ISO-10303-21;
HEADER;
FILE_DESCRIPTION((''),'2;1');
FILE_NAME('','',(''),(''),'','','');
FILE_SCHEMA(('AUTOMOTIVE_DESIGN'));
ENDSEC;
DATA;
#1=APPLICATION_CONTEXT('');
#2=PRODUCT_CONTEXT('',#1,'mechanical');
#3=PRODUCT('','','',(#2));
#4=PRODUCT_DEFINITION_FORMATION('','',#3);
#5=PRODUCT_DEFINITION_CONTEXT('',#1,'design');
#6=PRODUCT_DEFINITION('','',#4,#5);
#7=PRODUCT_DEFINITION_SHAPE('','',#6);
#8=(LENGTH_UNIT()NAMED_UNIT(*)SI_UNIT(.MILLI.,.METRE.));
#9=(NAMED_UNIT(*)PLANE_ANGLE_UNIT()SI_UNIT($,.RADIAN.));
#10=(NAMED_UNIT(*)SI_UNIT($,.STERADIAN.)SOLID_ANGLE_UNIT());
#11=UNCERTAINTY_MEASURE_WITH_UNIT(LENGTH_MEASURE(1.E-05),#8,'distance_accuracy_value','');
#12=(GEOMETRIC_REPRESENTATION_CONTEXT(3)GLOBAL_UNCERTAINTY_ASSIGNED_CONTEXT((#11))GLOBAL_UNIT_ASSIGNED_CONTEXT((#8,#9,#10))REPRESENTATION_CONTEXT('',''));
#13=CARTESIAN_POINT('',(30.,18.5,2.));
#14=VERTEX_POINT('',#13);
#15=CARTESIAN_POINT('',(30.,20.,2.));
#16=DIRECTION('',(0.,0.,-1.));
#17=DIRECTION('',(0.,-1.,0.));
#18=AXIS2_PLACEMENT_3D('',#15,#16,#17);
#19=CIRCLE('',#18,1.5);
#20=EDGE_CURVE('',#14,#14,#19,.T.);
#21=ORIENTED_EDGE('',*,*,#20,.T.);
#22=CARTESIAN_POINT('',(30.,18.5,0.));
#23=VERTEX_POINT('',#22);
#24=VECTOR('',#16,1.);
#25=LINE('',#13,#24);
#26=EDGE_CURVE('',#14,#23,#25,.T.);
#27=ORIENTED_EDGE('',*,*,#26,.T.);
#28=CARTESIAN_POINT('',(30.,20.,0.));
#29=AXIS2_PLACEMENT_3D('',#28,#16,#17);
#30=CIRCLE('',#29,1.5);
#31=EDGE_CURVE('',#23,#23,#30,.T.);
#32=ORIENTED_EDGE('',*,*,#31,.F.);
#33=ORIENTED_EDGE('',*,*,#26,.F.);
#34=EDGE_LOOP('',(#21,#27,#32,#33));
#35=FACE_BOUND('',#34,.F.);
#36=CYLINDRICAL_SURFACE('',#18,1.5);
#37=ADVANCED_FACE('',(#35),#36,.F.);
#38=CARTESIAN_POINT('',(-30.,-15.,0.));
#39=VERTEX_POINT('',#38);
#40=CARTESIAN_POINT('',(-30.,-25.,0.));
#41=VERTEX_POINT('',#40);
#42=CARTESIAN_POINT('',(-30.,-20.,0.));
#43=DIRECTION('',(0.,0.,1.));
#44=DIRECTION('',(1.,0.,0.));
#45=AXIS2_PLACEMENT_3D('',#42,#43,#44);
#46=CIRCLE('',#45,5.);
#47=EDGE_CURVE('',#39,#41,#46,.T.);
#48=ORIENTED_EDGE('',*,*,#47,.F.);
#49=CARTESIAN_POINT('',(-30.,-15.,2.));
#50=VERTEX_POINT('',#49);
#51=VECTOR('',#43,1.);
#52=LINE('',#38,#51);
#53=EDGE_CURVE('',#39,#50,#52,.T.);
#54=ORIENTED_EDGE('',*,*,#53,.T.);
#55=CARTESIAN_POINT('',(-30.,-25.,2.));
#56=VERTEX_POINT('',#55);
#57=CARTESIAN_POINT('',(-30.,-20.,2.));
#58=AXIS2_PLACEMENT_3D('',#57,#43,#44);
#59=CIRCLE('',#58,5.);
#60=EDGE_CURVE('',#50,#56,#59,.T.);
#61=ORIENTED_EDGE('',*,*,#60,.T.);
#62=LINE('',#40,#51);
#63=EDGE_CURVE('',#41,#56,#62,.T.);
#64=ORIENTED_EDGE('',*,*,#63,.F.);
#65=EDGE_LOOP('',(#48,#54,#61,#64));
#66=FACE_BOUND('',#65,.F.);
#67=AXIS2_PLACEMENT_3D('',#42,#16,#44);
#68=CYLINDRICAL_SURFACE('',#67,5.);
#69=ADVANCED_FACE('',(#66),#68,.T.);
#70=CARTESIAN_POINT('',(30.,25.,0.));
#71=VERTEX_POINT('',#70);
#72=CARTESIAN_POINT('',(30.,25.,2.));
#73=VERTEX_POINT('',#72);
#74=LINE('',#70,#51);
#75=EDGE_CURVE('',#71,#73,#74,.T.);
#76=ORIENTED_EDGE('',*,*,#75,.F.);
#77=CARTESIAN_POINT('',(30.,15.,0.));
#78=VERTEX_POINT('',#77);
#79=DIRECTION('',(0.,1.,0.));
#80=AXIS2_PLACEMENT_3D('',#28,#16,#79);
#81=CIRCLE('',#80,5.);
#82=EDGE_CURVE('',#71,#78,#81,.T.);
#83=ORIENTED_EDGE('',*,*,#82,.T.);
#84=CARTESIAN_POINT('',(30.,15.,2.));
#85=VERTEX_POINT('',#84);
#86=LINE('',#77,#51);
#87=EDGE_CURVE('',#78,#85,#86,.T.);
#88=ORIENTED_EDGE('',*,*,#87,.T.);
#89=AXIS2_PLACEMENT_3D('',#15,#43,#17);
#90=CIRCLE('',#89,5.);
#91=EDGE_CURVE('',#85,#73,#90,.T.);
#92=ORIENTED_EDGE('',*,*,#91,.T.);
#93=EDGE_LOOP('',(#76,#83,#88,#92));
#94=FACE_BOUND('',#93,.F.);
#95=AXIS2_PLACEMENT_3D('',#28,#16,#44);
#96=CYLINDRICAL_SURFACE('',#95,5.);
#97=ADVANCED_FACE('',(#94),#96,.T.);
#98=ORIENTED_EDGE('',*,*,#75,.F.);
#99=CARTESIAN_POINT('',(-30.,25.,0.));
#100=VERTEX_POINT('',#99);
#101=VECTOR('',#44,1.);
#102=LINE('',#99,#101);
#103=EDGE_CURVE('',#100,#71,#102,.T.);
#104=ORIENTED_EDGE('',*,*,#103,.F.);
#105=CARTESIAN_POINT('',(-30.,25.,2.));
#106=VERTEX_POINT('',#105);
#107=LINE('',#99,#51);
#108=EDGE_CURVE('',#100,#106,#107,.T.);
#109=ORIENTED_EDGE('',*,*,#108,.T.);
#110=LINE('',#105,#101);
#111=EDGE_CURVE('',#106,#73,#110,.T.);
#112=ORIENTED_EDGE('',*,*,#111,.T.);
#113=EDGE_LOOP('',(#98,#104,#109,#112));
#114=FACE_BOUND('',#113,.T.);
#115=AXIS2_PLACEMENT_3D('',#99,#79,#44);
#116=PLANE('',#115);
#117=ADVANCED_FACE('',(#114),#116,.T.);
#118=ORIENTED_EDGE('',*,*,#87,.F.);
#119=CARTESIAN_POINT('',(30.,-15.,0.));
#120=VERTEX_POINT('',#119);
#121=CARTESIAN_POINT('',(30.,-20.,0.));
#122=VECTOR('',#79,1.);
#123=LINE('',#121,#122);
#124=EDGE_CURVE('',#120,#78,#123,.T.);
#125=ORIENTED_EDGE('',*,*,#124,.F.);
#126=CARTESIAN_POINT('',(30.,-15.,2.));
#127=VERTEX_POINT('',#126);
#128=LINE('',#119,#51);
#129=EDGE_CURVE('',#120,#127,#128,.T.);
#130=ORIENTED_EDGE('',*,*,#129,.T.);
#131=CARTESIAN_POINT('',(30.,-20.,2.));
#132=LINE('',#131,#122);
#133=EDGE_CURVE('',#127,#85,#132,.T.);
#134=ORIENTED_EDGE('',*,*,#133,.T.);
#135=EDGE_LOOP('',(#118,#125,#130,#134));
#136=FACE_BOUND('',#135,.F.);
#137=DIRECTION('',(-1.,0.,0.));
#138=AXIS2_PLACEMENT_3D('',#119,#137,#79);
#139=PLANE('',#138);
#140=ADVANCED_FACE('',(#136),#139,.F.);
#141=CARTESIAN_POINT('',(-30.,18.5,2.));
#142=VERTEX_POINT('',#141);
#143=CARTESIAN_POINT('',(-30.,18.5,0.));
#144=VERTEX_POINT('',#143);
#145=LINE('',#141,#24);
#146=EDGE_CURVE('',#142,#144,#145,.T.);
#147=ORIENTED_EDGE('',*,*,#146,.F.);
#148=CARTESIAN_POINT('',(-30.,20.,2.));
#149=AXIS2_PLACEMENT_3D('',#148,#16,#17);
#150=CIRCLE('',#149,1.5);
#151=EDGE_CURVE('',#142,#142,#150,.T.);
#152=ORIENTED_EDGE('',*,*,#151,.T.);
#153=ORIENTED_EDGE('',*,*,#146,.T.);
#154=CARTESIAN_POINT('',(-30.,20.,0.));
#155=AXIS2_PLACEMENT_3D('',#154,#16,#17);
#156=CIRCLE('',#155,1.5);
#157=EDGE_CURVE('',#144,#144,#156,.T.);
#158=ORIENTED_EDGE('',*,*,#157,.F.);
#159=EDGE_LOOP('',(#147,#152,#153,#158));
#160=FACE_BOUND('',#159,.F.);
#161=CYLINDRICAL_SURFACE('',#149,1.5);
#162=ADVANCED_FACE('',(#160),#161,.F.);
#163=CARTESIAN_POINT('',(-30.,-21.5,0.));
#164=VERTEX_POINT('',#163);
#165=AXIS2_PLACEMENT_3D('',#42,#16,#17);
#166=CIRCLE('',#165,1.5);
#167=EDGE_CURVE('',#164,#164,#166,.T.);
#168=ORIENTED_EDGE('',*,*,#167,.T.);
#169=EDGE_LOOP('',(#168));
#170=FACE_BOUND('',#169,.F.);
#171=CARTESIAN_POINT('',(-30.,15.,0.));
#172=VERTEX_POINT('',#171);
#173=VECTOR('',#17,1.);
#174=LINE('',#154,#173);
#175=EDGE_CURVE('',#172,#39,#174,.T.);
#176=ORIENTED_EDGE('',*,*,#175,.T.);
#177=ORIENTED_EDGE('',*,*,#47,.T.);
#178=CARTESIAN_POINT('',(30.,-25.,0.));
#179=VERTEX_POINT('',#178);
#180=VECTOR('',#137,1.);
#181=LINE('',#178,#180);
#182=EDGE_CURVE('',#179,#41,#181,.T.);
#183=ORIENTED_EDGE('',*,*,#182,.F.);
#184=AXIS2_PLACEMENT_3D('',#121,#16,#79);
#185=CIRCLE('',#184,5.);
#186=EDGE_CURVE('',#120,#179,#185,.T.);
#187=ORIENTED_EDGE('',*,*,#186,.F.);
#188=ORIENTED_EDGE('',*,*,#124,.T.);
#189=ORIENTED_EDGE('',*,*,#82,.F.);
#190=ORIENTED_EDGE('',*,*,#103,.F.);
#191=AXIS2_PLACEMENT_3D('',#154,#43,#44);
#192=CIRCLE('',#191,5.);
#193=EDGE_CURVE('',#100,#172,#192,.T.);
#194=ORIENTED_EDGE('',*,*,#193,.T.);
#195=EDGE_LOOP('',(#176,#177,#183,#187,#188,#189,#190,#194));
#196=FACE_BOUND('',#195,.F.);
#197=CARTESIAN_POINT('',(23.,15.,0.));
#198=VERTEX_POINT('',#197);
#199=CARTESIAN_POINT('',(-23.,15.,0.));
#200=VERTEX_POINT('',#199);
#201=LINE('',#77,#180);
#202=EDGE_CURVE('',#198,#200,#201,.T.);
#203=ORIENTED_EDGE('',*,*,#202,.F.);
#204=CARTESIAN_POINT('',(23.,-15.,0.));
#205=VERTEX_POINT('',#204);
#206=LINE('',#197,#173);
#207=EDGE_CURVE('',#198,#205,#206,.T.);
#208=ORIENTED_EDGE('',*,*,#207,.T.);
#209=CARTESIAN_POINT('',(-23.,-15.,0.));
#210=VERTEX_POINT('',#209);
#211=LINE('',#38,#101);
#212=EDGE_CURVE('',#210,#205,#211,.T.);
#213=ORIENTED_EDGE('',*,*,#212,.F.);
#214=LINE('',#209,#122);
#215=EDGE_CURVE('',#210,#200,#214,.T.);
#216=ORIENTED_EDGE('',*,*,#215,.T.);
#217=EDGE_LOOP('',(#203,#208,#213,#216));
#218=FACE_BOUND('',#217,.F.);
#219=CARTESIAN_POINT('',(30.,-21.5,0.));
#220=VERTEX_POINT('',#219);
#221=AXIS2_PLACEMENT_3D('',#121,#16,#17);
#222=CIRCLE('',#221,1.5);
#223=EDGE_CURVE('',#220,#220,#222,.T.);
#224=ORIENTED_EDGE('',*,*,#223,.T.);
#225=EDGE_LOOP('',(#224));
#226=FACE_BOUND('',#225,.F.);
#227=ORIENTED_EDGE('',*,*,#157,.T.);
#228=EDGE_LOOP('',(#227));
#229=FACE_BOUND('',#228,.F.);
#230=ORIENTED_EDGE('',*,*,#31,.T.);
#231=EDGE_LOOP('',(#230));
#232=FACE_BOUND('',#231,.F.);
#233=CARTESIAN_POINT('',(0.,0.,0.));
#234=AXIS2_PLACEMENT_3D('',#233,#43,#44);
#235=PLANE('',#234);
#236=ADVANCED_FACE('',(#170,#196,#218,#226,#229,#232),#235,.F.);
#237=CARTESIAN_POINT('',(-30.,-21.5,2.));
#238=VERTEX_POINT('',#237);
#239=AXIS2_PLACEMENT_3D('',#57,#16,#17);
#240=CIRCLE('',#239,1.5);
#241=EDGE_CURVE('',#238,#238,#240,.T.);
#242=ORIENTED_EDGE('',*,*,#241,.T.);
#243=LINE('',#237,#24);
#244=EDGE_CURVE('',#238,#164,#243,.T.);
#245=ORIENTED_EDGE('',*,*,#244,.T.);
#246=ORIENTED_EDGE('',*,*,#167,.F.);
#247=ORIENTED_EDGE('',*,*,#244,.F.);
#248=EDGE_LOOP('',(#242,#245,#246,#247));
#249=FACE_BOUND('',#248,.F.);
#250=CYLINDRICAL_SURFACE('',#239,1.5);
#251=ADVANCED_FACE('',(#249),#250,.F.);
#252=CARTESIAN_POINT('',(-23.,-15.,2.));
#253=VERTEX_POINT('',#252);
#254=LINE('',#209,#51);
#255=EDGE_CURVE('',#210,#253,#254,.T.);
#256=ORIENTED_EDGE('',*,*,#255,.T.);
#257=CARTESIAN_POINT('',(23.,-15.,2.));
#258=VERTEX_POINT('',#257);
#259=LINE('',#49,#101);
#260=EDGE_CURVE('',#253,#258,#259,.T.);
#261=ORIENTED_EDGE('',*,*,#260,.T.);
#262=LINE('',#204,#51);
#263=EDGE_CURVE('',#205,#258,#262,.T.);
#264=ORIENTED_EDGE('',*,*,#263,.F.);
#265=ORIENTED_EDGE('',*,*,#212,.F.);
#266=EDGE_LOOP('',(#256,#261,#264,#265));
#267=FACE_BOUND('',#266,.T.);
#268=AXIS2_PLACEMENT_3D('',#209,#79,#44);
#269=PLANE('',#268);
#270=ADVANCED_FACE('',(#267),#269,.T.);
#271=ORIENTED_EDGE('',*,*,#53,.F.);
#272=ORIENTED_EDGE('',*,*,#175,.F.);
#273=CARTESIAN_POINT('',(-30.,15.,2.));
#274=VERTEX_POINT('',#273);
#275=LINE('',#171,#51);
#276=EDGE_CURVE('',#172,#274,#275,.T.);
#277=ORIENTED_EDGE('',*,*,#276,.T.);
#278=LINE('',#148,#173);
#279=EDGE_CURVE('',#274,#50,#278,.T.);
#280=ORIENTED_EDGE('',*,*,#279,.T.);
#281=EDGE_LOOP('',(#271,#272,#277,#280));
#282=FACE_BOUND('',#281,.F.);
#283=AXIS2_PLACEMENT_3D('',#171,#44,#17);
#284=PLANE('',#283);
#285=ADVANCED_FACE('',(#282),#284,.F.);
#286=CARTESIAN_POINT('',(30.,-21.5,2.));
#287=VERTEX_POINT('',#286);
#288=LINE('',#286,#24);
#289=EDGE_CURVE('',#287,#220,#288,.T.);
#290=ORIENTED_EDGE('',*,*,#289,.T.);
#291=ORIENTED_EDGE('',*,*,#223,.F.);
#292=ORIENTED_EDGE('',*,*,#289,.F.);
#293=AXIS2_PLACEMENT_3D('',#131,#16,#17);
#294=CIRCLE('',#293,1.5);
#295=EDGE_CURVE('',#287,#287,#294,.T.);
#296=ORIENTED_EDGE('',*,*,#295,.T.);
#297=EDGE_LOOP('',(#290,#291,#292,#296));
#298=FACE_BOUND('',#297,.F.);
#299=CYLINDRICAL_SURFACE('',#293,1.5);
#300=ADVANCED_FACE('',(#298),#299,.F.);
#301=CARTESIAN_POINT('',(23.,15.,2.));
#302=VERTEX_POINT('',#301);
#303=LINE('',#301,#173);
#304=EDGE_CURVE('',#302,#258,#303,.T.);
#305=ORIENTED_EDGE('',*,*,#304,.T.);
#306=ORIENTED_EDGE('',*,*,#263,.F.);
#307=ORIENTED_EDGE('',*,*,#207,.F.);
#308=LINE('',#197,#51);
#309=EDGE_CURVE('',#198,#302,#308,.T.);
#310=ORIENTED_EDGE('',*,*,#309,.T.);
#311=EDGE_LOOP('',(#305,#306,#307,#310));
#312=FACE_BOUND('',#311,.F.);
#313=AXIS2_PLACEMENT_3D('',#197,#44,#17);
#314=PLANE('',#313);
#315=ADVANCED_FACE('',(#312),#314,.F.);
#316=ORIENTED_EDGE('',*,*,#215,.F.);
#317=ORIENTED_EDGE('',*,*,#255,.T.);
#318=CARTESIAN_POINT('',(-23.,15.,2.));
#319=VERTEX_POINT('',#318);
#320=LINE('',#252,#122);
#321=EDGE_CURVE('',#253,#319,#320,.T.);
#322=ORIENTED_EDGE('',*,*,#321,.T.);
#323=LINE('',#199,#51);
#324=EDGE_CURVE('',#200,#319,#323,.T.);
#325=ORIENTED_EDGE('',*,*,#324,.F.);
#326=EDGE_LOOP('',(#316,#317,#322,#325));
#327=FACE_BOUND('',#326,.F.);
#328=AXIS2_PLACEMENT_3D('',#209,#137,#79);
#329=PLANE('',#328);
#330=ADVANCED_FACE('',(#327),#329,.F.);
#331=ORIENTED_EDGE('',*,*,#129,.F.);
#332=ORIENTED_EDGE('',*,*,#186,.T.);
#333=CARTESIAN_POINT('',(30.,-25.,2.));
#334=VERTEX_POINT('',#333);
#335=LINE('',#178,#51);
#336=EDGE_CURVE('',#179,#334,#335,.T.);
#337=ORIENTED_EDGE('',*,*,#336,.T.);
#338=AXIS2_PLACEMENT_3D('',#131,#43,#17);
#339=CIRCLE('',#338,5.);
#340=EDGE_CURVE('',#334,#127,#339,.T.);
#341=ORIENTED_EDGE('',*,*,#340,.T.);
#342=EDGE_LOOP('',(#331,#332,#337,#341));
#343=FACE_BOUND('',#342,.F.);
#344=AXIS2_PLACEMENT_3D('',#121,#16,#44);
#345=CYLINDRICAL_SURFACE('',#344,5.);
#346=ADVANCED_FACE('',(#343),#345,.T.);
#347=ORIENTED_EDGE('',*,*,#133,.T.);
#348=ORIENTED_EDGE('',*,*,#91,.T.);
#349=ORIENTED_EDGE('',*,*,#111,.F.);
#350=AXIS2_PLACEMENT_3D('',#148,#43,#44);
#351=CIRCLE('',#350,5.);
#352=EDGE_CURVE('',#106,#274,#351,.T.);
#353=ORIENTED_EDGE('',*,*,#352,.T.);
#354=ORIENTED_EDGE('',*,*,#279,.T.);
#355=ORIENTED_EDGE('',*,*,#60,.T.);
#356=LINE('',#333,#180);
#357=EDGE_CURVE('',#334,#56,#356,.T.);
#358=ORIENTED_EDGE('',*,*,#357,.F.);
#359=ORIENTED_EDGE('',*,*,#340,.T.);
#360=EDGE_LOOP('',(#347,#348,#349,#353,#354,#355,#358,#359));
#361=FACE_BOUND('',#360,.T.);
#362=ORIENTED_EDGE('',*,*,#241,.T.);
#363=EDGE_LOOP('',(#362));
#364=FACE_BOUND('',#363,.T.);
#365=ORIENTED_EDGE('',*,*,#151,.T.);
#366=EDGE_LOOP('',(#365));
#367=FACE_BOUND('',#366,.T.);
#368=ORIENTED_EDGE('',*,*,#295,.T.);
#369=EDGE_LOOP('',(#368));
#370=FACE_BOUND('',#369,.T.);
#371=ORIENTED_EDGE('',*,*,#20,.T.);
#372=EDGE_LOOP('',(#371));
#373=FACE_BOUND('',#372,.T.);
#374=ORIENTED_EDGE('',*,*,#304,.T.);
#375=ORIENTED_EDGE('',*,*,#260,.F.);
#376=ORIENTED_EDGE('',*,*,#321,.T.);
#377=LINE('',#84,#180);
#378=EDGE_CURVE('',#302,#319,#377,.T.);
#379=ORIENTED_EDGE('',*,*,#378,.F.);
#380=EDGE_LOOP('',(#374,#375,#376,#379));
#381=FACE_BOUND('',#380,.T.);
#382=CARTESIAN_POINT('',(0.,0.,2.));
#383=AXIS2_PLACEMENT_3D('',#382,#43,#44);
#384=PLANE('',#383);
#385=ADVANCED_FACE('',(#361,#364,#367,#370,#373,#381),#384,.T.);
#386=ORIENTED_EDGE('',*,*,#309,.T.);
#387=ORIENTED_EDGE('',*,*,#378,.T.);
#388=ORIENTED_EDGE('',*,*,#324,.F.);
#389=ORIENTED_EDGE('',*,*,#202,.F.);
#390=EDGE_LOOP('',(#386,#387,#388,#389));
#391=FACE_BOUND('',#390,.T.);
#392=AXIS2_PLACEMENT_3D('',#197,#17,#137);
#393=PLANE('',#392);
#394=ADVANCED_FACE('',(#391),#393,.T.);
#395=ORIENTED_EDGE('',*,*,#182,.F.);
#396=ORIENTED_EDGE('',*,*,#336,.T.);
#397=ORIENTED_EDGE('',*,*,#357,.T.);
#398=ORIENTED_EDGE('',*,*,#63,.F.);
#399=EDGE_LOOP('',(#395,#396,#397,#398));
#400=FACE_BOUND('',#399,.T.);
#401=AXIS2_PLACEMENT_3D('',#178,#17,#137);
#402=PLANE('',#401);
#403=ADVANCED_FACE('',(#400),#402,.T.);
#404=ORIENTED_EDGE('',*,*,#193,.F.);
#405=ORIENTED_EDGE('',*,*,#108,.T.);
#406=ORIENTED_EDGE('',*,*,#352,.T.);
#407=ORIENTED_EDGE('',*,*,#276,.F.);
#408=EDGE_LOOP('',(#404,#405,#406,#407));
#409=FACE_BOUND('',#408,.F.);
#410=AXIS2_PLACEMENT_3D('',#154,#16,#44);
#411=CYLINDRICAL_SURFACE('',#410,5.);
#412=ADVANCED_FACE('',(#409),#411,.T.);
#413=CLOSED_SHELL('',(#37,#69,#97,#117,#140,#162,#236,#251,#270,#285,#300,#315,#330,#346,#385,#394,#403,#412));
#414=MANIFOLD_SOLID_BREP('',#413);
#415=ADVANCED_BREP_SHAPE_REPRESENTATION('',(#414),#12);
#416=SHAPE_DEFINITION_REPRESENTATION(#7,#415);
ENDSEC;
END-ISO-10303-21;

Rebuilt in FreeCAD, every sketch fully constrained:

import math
import FreeCAD as App
import Part
import Sketcher
Q = App.Units.Quantity


def add_polygon(sketch, points):
    """Adds a closed chain of lines whose ends are joined by coincident constraints."""
    first, n = sketch.GeometryCount, len(points)
    for a, b in zip(points, points[1:] + points[:1]):
        sketch.addGeometry(Part.LineSegment(App.Vector(*a, 0), App.Vector(*b, 0)), False)
    for i in range(n):
        sketch.addConstraint(Sketcher.Constraint("Coincident", first + i, 2, first + (i + 1) % n, 1))

doc = App.newDocument("Part")
params = doc.addObject("Spreadsheet::Sheet", "Params")
for row, (alias, value) in enumerate([
    ("sketch1_radius", "5 mm"),
    ("sketch1_width", "60 mm"),
    ("pad1_length", "2 mm"),
    ("sketch2_diameter", "3 mm"),
    ("hole_diameter", "3 mm"),
], start=1):
    params.set(f"A{row}", alias)
    params.set(f"B{row}", "=" + value)
    params.setAlias(f"B{row}", alias)

body = doc.addObject("PartDesign::Body", "Body")

sketch1 = body.newObject("Sketcher::SketchObject", "Sketch")
sketch1.AttachmentSupport = (doc.getObject("XY_Plane"), [""])
sketch1.MapMode = "FlatFace"
sketch1.addGeometry(Part.ArcOfCircle(Part.Circle(App.Vector(-30, -20, 0), App.Vector(0, 0, 1), 5), math.radians(90), math.radians(270)), False)
sketch1.addGeometry(Part.LineSegment(App.Vector(-30, -25, 0), App.Vector(30, -25, 0)), False)
sketch1.addGeometry(Part.ArcOfCircle(Part.Circle(App.Vector(30, -20, 0), App.Vector(0, 0, 1), 5), math.radians(-90), math.radians(90)), False)
sketch1.addGeometry(Part.LineSegment(App.Vector(30, -15, 0), App.Vector(30, 15, 0)), False)
sketch1.addGeometry(Part.ArcOfCircle(Part.Circle(App.Vector(30, 20, 0), App.Vector(0, 0, 1), 5), math.radians(-90), math.radians(90)), False)
sketch1.addGeometry(Part.LineSegment(App.Vector(30, 25, 0), App.Vector(-30, 25, 0)), False)
sketch1.addGeometry(Part.ArcOfCircle(Part.Circle(App.Vector(-30, 20, 0), App.Vector(0, 0, 1), 5), math.radians(90), math.radians(270)), False)
sketch1.addGeometry(Part.LineSegment(App.Vector(-30, 15, 0), App.Vector(-30, -15, 0)), False)
add_polygon(sketch1, [(23, -15), (-23, -15), (-23, 15), (23, 15)])
sketch1.addConstraint(Sketcher.Constraint("Tangent", 0, 2, 1, 1))
sketch1.addConstraint(Sketcher.Constraint("Tangent", 1, 2, 2, 1))
sketch1.addConstraint(Sketcher.Constraint("Coincident", 2, 2, 3, 1))
sketch1.addConstraint(Sketcher.Constraint("Coincident", 3, 2, 4, 1))
sketch1.addConstraint(Sketcher.Constraint("Tangent", 4, 2, 5, 1))
sketch1.addConstraint(Sketcher.Constraint("Tangent", 5, 2, 6, 1))
sketch1.addConstraint(Sketcher.Constraint("Coincident", 6, 2, 7, 1))
sketch1.addConstraint(Sketcher.Constraint("Coincident", 7, 2, 0, 1))
sketch1.addConstraint(Sketcher.Constraint("Horizontal", 1))
sketch1.addConstraint(Sketcher.Constraint("Vertical", 3))
sketch1.addConstraint(Sketcher.Constraint("Horizontal", 5))
sketch1.addConstraint(Sketcher.Constraint("Vertical", 7))
sketch1.addConstraint(Sketcher.Constraint("Horizontal", 8))
sketch1.addConstraint(Sketcher.Constraint("Vertical", 9))
sketch1.addConstraint(Sketcher.Constraint("Horizontal", 10))
sketch1.addConstraint(Sketcher.Constraint("Vertical", 11))
sketch1.addConstraint(Sketcher.Constraint("Equal", 0, 2))
sketch1.addConstraint(Sketcher.Constraint("Equal", 2, 4))
sketch1.addConstraint(Sketcher.Constraint("Equal", 4, 6))
sketch1.addConstraint(Sketcher.Constraint("Symmetric", 0, 3, 4, 3, -1, 1))
sketch1.addConstraint(Sketcher.Constraint("Symmetric", 8, 2, 10, 2, -1, 1))
sketch1.addConstraint(Sketcher.Constraint("Horizontal", 7, 2, 8, 2))
sketch1.addConstraint(Sketcher.Constraint("Vertical", 2, 3, 4, 3))
sketch1.addConstraint(Sketcher.Constraint("Vertical", 0, 3, 6, 3))
sketch1.addConstraint(Sketcher.Constraint("Vertical", 1, 2, 2, 2))
sketch1.addConstraint(Sketcher.Constraint("Vertical", 5, 2, 6, 2))
sketch1.addConstraint(Sketcher.Constraint("Radius", 0, Q("5 mm")))
sketch1.addConstraint(Sketcher.Constraint("DistanceX", 1, 1, 1, 2, Q("60 mm")))
sketch1.addConstraint(Sketcher.Constraint("DistanceY", 2, 3, 4, 3, Q("40 mm")))
sketch1.addConstraint(Sketcher.Constraint("DistanceX", 7, 2, 8, 2, Q("7 mm")))
sketch1.setExpression("Constraints[30]", "Params.sketch1_radius")
sketch1.setExpression("Constraints[31]", "Params.sketch1_width")
pad1 = body.newObject("PartDesign::Pad", "Pad")
pad1.Profile = sketch1
pad1.setExpression("Length", "Params.pad1_length")

sketch2 = body.newObject("Sketcher::SketchObject", "Sketch001")
sketch2.AttachmentSupport = (doc.getObject("XY_Plane"), [""])
sketch2.MapMode = "FlatFace"
sketch2.AttachmentOffset = App.Placement(App.Vector(0, 0, 2), App.Rotation())
sketch2.addGeometry(Part.Circle(App.Vector(-30, 20, 0), App.Vector(0, 0, 1), 1.5), False)
sketch2.addGeometry(Part.Circle(App.Vector(-30, -20, 0), App.Vector(0, 0, 1), 1.5), False)
sketch2.addGeometry(Part.Circle(App.Vector(30, -20, 0), App.Vector(0, 0, 1), 1.5), False)
sketch2.addGeometry(Part.Circle(App.Vector(30, 20, 0), App.Vector(0, 0, 1), 1.5), False)
sketch2.addConstraint(Sketcher.Constraint("Equal", 0, 1))
sketch2.addConstraint(Sketcher.Constraint("Equal", 1, 2))
sketch2.addConstraint(Sketcher.Constraint("Equal", 2, 3))
sketch2.addConstraint(Sketcher.Constraint("Symmetric", 0, 3, 2, 3, -1, 1))
sketch2.addConstraint(Sketcher.Constraint("Symmetric", 1, 3, 3, 3, -1, 1))
sketch2.addConstraint(Sketcher.Constraint("Symmetric", 1, 3, 2, 3, -2))
sketch2.addConstraint(Sketcher.Constraint("Diameter", 0, Q("3 mm")))
sketch2.addConstraint(Sketcher.Constraint("DistanceX", 0, 3, -1, 1, Q("30 mm")))
sketch2.addConstraint(Sketcher.Constraint("DistanceY", -1, 1, 0, 3, Q("20 mm")))
sketch2.setExpression("Constraints[6]", "Params.sketch2_diameter")
doc.recompute()
hole = body.newObject("PartDesign::Hole", "Hole")
hole.Profile = sketch2
hole.ThreadType = "None"
hole.setExpression("Diameter", "Params.hole_diameter")
hole.DepthType = "ThroughAll"

doc.recompute()
